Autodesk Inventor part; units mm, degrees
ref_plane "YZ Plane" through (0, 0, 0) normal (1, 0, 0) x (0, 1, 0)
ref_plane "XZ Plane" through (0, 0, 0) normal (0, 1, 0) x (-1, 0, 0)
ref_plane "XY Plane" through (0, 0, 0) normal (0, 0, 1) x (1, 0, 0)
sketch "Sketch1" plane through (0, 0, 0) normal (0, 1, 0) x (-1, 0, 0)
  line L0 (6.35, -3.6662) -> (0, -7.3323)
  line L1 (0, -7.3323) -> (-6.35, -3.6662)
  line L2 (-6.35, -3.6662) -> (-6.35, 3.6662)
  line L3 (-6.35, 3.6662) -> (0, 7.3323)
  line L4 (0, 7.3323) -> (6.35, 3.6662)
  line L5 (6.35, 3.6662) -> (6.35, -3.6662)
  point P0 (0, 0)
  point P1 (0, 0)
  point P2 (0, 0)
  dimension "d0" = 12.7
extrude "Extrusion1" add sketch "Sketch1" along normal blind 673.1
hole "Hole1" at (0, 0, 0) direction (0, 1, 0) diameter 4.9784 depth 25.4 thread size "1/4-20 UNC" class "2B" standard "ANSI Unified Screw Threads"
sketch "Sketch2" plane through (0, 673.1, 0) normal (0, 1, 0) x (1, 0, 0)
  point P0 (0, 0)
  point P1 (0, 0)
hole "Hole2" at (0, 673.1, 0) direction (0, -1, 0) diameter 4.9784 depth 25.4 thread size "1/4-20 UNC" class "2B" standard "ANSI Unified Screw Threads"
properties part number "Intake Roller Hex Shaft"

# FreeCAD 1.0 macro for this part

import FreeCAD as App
import Part
import Sketcher

V = App.Vector
Q = App.Units.Quantity

doc = App.newDocument("Part")
body = doc.addObject("PartDesign::Body", "Body")

# Sketch on XZ plane
sketch1 = body.newObject("Sketcher::SketchObject", "Sketch")
sketch1.AttachmentSupport = (doc.getObject("XZ_Plane"), [""])
sketch1.MapMode = "FlatFace"
sketch1.addGeometry([
    Part.LineSegment(V(0, -7.3323, 0), V(-6.35, -3.6662, 0)),  # 0
    Part.LineSegment(V(-6.35, -3.6662, 0), V(-6.35, 3.6662, 0)),  # 1
    Part.LineSegment(V(-6.35, 3.6662, 0), V(0, 7.3323, 0)),  # 2
    Part.LineSegment(V(0, 7.3323, 0), V(6.35, 3.6662, 0)),  # 3
    Part.LineSegment(V(6.35, 3.6662, 0), V(6.35, -3.6662, 0)),  # 4
    Part.LineSegment(V(6.35, -3.6662, 0), V(0, -7.3323, 0)),  # 5
], False)
sketch1.addConstraint([
    Sketcher.Constraint("Coincident", 0, 2, 1, 1),
    Sketcher.Constraint("Coincident", 1, 2, 2, 1),
    Sketcher.Constraint("Coincident", 2, 2, 3, 1),
    Sketcher.Constraint("Coincident", 3, 2, 4, 1),
    Sketcher.Constraint("Coincident", 4, 2, 5, 1),
    Sketcher.Constraint("Coincident", 5, 2, 0, 1),
    Sketcher.Constraint("Vertical", 1),
    Sketcher.Constraint("Vertical", 4),
    Sketcher.Constraint("Symmetric", 0, 2, 3, 2, -1, 1),
    Sketcher.Constraint("Symmetric", 2, 2, 5, 2, -1, 1),
    Sketcher.Constraint("PointOnObject", 2, 2, -2),
    Sketcher.Constraint("Parallel", 2, 5),
    Sketcher.Constraint("Horizontal", 1, 2, 3, 2),
    Sketcher.Constraint("DistanceX", 1, 2, 3, 2, Q("0.5 in")),
    Sketcher.Constraint("Angle", 0, Q("150.0005 deg")),
    Sketcher.Constraint("DistanceY", 0, 2, 2, 2, Q("0.433 in")),
])
pad1 = body.newObject("PartDesign::Pad", "Pad")
pad1.Profile = sketch1
pad1.Length = Q("26.5 in")
pad1.Reversed = True

# Sketch on XZ plane
sketch2 = body.newObject("Sketcher::SketchObject", "Sketch001")
sketch2.AttachmentSupport = (doc.getObject("XZ_Plane"), [""])
sketch2.MapMode = "FlatFace"
sketch2.addGeometry(Part.Circle(V(0, 0, 0), V(0, 0, 1), 2.4892), False)
sketch2.addConstraint([
    Sketcher.Constraint("Coincident", 0, 3, -1, 1),
    Sketcher.Constraint("Diameter", 0, Q("0.196 in")),
])
doc.recompute()
hole = body.newObject("PartDesign::Hole", "Hole")
hole.Profile = sketch2
hole.ThreadType = "None"
hole.Diameter = Q("0.196 in")
hole.DepthType = "Dimension"
hole.Depth = Q("1 in")
hole.DrillPoint = "Flat"

# Sketch on XZ plane
sketch3 = body.newObject("Sketcher::SketchObject", "Sketch002")
sketch3.AttachmentSupport = (doc.getObject("XZ_Plane"), [""])
sketch3.MapMode = "FlatFace"
sketch3.AttachmentOffset = App.Placement(V(0, 0, -26.5 * 25.4), App.Rotation())
sketch3.addGeometry(Part.Circle(V(0, 0, 0), V(0, 0, 1), 2.4892), False)
sketch3.addConstraint([
    Sketcher.Constraint("Coincident", 0, 3, -1, 1),
    Sketcher.Constraint("Diameter", 0, Q("0.196 in")),
])
doc.recompute()
hole2 = body.newObject("PartDesign::Hole", "Hole001")
hole2.Profile = sketch3
hole2.ThreadType = "None"
hole2.Diameter = Q("0.196 in")
hole2.DepthType = "Dimension"
hole2.Depth = Q("1 in")
hole2.DrillPoint = "Flat"
hole2.Reversed = True

doc.recompute()
